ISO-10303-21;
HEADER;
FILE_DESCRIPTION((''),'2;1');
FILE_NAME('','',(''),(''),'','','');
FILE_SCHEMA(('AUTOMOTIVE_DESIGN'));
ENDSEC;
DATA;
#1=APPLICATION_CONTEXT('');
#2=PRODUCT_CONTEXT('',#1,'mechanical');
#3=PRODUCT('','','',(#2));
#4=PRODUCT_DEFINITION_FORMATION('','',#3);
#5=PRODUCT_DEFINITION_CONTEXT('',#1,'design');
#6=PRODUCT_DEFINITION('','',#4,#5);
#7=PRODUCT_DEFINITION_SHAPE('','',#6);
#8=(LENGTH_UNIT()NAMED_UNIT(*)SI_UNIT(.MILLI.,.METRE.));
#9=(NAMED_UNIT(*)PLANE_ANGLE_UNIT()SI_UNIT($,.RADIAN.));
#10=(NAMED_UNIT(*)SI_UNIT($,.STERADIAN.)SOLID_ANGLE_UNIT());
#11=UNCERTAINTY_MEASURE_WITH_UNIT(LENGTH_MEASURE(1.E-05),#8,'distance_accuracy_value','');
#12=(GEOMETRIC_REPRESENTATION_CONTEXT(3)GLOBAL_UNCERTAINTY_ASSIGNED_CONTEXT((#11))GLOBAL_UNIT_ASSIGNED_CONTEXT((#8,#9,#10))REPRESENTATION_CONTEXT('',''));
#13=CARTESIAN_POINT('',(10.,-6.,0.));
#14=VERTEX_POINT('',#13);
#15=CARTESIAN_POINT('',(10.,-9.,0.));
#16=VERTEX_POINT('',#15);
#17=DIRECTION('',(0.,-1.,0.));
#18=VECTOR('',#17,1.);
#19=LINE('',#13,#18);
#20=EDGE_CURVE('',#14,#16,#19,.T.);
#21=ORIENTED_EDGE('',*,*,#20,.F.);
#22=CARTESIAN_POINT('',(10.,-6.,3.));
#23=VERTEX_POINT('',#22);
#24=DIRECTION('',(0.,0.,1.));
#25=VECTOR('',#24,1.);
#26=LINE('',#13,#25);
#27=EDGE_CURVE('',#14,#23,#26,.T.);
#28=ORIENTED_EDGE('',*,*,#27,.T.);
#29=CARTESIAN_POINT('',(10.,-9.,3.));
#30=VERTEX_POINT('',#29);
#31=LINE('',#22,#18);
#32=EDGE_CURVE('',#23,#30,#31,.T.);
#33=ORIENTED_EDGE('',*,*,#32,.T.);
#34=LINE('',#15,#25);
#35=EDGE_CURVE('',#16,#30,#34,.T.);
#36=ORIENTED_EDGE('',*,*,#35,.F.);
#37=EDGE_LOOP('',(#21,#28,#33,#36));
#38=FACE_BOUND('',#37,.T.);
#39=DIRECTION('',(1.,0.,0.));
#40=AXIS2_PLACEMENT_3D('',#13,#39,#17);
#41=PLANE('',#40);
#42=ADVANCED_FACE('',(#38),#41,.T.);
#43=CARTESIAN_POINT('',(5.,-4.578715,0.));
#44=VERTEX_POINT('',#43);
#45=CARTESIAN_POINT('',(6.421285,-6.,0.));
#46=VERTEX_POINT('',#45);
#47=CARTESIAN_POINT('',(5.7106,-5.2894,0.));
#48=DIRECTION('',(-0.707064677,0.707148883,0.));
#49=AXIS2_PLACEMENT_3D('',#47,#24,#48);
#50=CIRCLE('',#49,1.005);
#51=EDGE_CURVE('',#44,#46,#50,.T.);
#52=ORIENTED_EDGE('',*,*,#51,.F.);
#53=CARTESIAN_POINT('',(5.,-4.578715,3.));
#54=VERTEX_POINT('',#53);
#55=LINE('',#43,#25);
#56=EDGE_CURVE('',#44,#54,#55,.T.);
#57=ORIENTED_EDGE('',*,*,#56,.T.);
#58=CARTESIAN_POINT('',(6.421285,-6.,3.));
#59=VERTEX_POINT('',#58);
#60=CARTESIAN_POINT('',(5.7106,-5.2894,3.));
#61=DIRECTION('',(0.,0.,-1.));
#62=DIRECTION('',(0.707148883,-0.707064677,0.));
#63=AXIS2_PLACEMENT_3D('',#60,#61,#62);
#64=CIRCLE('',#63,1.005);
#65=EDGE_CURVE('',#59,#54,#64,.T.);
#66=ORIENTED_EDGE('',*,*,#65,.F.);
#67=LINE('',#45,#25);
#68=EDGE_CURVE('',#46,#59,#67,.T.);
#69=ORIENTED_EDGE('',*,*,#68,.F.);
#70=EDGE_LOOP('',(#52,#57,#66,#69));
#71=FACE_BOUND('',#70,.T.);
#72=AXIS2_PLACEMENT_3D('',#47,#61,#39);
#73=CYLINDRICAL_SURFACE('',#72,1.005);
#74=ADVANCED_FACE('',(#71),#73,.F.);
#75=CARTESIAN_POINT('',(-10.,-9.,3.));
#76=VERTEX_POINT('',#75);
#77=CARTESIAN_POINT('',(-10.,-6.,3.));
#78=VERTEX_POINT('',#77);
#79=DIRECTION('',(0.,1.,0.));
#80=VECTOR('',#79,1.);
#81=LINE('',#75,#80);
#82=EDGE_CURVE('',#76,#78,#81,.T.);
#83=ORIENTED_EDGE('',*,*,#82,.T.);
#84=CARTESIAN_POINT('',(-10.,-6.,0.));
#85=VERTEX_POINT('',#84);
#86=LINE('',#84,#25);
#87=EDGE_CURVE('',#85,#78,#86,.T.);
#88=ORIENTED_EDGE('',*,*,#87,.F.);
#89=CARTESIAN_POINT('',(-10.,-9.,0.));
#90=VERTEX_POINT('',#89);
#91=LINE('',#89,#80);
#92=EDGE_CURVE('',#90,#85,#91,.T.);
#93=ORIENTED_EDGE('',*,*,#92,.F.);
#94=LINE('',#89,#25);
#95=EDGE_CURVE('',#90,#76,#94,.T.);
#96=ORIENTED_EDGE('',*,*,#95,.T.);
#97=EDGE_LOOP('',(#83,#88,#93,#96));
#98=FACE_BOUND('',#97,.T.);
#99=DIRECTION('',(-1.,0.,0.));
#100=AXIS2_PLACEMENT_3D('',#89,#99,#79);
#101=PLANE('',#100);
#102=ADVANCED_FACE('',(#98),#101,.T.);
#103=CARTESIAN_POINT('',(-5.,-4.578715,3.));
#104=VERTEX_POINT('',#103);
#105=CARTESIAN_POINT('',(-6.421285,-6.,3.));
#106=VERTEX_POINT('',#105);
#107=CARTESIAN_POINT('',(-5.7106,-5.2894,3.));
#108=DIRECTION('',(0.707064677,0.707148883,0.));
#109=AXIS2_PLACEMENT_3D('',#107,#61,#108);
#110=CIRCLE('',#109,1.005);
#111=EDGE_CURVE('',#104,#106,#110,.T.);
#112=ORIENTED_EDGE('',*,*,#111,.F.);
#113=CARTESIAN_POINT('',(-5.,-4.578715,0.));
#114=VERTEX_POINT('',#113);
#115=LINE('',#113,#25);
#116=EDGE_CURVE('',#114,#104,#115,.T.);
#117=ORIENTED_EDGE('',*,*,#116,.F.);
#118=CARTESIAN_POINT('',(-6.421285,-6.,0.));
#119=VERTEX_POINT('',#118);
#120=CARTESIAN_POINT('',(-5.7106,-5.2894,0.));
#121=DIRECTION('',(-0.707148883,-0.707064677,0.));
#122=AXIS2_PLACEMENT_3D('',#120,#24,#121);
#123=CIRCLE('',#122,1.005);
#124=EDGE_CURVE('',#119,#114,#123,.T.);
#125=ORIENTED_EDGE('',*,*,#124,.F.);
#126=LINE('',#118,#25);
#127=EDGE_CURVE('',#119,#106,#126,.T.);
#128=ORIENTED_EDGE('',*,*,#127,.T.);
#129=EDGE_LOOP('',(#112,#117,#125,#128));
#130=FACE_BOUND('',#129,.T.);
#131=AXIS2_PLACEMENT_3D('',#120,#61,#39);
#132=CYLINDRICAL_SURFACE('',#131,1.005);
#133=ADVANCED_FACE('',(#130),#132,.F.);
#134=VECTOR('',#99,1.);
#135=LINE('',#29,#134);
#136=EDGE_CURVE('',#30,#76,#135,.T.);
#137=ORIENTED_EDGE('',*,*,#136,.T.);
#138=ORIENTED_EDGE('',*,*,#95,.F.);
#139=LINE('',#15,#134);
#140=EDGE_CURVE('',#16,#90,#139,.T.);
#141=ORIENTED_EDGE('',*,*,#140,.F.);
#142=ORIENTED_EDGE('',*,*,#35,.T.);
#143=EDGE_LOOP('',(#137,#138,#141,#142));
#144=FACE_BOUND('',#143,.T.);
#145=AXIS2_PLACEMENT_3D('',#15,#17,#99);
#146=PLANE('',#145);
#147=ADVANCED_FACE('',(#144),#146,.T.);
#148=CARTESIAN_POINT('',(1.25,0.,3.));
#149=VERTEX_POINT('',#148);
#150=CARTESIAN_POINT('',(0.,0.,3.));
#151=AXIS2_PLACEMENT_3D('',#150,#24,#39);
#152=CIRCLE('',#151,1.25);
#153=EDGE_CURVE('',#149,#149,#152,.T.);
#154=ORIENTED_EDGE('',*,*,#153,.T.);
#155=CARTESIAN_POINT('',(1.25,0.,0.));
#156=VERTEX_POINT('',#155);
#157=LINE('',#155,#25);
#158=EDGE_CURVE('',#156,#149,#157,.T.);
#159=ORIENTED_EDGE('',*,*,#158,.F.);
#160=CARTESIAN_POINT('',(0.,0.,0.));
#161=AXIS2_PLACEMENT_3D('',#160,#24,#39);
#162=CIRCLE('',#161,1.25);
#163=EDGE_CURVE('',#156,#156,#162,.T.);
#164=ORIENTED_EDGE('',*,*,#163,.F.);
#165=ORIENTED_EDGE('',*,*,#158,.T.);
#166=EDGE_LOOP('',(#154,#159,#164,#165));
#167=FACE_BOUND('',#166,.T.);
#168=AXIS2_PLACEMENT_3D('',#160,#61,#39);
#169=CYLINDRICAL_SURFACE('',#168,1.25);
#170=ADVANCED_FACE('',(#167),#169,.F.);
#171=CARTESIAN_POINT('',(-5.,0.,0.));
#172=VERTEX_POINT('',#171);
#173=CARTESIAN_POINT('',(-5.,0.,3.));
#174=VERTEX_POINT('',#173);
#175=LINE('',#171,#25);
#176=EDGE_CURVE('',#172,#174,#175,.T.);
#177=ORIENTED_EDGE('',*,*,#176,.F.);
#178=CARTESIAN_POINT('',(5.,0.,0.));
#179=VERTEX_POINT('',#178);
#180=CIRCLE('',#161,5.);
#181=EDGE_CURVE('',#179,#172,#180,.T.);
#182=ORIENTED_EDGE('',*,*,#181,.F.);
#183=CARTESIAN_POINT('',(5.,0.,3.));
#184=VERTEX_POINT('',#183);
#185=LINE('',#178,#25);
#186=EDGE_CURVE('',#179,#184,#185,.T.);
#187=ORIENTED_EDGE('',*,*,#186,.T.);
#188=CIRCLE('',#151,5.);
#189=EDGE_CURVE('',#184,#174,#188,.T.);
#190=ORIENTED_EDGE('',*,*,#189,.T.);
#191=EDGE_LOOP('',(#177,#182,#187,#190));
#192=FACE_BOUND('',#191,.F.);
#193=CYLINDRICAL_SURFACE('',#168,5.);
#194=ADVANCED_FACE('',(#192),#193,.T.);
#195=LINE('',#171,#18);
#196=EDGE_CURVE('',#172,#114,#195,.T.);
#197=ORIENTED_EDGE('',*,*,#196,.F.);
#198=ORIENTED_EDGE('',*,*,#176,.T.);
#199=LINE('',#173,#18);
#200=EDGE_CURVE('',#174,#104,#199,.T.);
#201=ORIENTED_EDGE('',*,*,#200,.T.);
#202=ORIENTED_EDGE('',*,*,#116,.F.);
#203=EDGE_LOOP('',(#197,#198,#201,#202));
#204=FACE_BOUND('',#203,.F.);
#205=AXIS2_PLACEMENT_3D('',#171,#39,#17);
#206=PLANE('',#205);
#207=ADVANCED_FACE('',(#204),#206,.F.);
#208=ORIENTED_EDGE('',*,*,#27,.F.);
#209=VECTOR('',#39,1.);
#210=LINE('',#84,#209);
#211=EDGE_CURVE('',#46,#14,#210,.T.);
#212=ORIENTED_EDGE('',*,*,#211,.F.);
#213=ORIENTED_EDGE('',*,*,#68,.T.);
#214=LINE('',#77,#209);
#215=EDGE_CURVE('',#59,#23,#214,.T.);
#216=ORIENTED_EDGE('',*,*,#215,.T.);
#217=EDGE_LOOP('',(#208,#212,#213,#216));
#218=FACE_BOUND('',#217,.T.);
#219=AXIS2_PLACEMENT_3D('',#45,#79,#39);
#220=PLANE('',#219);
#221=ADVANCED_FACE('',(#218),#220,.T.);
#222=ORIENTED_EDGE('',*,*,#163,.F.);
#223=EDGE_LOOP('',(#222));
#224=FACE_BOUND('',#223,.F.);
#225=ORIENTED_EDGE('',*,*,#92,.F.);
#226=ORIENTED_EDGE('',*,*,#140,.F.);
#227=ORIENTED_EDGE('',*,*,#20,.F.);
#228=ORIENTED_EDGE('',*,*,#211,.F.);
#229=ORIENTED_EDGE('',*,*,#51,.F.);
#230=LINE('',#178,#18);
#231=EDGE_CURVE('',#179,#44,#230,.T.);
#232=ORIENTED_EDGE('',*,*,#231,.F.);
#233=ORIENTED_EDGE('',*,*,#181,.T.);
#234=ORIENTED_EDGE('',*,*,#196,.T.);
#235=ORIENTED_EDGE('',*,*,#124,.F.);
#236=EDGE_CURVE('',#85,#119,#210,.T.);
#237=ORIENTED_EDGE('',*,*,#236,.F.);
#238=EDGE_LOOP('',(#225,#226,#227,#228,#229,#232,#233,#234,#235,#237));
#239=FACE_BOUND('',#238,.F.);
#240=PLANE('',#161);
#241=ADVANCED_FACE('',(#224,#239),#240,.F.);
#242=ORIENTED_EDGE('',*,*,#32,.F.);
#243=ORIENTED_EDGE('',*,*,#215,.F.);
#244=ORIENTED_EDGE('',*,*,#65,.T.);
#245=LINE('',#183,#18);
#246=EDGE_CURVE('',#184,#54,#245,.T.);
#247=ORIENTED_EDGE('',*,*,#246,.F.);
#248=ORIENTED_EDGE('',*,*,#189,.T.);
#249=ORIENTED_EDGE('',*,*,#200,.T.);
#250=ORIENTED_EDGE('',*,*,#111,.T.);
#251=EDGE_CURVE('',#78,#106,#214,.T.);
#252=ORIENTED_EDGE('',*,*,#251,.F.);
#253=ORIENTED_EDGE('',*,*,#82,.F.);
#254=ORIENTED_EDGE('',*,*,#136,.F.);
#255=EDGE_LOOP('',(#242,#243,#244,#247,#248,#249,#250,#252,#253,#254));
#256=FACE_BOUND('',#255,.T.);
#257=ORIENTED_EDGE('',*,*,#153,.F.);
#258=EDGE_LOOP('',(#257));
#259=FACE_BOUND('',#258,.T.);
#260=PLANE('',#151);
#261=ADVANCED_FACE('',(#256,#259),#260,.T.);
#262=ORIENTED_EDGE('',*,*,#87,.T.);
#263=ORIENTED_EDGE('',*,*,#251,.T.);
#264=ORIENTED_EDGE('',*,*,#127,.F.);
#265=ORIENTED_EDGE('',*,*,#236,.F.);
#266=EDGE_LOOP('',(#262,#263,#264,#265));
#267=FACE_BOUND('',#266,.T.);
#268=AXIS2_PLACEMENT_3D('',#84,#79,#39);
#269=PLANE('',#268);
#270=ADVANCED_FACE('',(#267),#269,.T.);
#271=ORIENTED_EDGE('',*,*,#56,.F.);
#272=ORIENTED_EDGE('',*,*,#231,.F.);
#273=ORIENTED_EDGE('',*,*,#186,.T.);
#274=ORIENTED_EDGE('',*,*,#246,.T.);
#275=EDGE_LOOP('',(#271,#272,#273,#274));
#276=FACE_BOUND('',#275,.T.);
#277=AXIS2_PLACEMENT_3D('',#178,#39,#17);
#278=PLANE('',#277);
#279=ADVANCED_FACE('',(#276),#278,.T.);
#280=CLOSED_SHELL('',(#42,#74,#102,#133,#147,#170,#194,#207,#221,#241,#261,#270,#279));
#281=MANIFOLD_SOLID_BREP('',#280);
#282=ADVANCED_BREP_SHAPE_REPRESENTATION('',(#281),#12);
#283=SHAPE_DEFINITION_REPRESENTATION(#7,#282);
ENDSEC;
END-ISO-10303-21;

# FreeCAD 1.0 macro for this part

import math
import FreeCAD as App
import Part
import Sketcher
Q = App.Units.Quantity

doc = App.newDocument("Part")
params = doc.addObject("Spreadsheet::Sheet", "Params")
for row, (alias, value) in enumerate([
    ("sketch1_radius", "5 mm"),
    ("sketch1_diameter", "2.5 mm"),
    ("sketch1_width", "20 mm"),
    ("sketch1_height", "3 mm"),
    ("pad1_length", "3 mm"),
], start=1):
    params.set(f"A{row}", alias)
    params.set(f"B{row}", "=" + value)
    params.setAlias(f"B{row}", alias)

body = doc.addObject("PartDesign::Body", "Body")

# Sketch on XY plane
sketch1 = body.newObject("Sketcher::SketchObject", "Sketch")
sketch1.AttachmentSupport = (doc.getObject("XY_Plane"), [""])
sketch1.MapMode = "FlatFace"
sketch1.addGeometry([
    Part.ArcOfCircle(Part.Circle(App.Vector(0, 0, 0), App.Vector(0, 0, 1), 5), math.radians(0), math.radians(180)),  # 0
    Part.LineSegment(App.Vector(-5, 0, 0), App.Vector(-5, -4.6, 0)),  # 1
    Part.ArcOfCircle(Part.Circle(App.Vector(-5.7, -5.3, 0), App.Vector(0, 0, 1), 1), math.radians(-135), math.radians(45)),  # 2
    Part.LineSegment(App.Vector(-6.4, -6, 0), App.Vector(-10, -6, 0)),  # 3
    Part.LineSegment(App.Vector(-10, -6, 0), App.Vector(-10, -9, 0)),  # 4
    Part.LineSegment(App.Vector(-10, -9, 0), App.Vector(10, -9, 0)),  # 5
    Part.LineSegment(App.Vector(10, -9, 0), App.Vector(10, -6, 0)),  # 6
    Part.LineSegment(App.Vector(10, -6, 0), App.Vector(6.4, -6, 0)),  # 7
    Part.ArcOfCircle(Part.Circle(App.Vector(5.7, -5.3, 0), App.Vector(0, 0, 1), 1), math.radians(135), math.radians(315)),  # 8
    Part.LineSegment(App.Vector(5, -4.6, 0), App.Vector(5, 0, 0)),  # 9
    Part.Circle(App.Vector(0, 0, 0), App.Vector(0, 0, 1), 1.2),  # 10
], False)
sketch1.addConstraint([
    Sketcher.Constraint("Tangent", 0, 2, 1, 1),
    Sketcher.Constraint("Coincident", 1, 2, 2, 2),
    Sketcher.Constraint("Coincident", 2, 1, 3, 1),
    Sketcher.Constraint("Coincident", 3, 2, 4, 1),
    Sketcher.Constraint("Coincident", 4, 2, 5, 1),
    Sketcher.Constraint("Coincident", 5, 2, 6, 1),
    Sketcher.Constraint("Coincident", 6, 2, 7, 1),
    Sketcher.Constraint("Coincident", 7, 2, 8, 2),
    Sketcher.Constraint("Coincident", 8, 1, 9, 1),
    Sketcher.Constraint("Tangent", 9, 2, 0, 1),
    Sketcher.Constraint("Vertical", 1),
    Sketcher.Constraint("Horizontal", 3),
    Sketcher.Constraint("Vertical", 4),
    Sketcher.Constraint("Horizontal", 5),
    Sketcher.Constraint("Vertical", 6),
    Sketcher.Constraint("Horizontal", 7),
    Sketcher.Constraint("Vertical", 9),
    Sketcher.Constraint("Coincident", 0, 3, -1, 1),
    Sketcher.Constraint("Coincident", 10, 3, -1, 1),
    Sketcher.Constraint("Equal", 2, 8),
    Sketcher.Constraint("Symmetric", 2, 3, 8, 3, -2),
    Sketcher.Constraint("Symmetric", 3, 2, 6, 2, -2),
    Sketcher.Constraint("Radius", 0, Q("5 mm")),
    Sketcher.Constraint("Diameter", 10, Q("2.5 mm")),
    Sketcher.Constraint("DistanceX", 5, 1, 5, 2, Q("20 mm")),
    Sketcher.Constraint("DistanceY", 4, 2, 4, 1, Q("3 mm")),
    Sketcher.Constraint("DistanceY", 2, 1, -1, 1, Q("6 mm")),
    Sketcher.Constraint("Radius", 2, Q("1.005 mm")),
    Sketcher.Constraint("DistanceX", 3, 2, 3, 1, Q("3.5787 mm")),
    Sketcher.Constraint("DistanceX", 2, 3, -1, 1, Q("5.7106 mm")),
])
sketch1.setExpression("Constraints[22]", "Params.sketch1_radius")
sketch1.setExpression("Constraints[23]", "Params.sketch1_diameter")
sketch1.setExpression("Constraints[24]", "Params.sketch1_width")
sketch1.setExpression("Constraints[25]", "Params.sketch1_height")
pad1 = body.newObject("PartDesign::Pad", "Pad")
pad1.Profile = sketch1
pad1.setExpression("Length", "Params.pad1_length")

doc.recompute()
